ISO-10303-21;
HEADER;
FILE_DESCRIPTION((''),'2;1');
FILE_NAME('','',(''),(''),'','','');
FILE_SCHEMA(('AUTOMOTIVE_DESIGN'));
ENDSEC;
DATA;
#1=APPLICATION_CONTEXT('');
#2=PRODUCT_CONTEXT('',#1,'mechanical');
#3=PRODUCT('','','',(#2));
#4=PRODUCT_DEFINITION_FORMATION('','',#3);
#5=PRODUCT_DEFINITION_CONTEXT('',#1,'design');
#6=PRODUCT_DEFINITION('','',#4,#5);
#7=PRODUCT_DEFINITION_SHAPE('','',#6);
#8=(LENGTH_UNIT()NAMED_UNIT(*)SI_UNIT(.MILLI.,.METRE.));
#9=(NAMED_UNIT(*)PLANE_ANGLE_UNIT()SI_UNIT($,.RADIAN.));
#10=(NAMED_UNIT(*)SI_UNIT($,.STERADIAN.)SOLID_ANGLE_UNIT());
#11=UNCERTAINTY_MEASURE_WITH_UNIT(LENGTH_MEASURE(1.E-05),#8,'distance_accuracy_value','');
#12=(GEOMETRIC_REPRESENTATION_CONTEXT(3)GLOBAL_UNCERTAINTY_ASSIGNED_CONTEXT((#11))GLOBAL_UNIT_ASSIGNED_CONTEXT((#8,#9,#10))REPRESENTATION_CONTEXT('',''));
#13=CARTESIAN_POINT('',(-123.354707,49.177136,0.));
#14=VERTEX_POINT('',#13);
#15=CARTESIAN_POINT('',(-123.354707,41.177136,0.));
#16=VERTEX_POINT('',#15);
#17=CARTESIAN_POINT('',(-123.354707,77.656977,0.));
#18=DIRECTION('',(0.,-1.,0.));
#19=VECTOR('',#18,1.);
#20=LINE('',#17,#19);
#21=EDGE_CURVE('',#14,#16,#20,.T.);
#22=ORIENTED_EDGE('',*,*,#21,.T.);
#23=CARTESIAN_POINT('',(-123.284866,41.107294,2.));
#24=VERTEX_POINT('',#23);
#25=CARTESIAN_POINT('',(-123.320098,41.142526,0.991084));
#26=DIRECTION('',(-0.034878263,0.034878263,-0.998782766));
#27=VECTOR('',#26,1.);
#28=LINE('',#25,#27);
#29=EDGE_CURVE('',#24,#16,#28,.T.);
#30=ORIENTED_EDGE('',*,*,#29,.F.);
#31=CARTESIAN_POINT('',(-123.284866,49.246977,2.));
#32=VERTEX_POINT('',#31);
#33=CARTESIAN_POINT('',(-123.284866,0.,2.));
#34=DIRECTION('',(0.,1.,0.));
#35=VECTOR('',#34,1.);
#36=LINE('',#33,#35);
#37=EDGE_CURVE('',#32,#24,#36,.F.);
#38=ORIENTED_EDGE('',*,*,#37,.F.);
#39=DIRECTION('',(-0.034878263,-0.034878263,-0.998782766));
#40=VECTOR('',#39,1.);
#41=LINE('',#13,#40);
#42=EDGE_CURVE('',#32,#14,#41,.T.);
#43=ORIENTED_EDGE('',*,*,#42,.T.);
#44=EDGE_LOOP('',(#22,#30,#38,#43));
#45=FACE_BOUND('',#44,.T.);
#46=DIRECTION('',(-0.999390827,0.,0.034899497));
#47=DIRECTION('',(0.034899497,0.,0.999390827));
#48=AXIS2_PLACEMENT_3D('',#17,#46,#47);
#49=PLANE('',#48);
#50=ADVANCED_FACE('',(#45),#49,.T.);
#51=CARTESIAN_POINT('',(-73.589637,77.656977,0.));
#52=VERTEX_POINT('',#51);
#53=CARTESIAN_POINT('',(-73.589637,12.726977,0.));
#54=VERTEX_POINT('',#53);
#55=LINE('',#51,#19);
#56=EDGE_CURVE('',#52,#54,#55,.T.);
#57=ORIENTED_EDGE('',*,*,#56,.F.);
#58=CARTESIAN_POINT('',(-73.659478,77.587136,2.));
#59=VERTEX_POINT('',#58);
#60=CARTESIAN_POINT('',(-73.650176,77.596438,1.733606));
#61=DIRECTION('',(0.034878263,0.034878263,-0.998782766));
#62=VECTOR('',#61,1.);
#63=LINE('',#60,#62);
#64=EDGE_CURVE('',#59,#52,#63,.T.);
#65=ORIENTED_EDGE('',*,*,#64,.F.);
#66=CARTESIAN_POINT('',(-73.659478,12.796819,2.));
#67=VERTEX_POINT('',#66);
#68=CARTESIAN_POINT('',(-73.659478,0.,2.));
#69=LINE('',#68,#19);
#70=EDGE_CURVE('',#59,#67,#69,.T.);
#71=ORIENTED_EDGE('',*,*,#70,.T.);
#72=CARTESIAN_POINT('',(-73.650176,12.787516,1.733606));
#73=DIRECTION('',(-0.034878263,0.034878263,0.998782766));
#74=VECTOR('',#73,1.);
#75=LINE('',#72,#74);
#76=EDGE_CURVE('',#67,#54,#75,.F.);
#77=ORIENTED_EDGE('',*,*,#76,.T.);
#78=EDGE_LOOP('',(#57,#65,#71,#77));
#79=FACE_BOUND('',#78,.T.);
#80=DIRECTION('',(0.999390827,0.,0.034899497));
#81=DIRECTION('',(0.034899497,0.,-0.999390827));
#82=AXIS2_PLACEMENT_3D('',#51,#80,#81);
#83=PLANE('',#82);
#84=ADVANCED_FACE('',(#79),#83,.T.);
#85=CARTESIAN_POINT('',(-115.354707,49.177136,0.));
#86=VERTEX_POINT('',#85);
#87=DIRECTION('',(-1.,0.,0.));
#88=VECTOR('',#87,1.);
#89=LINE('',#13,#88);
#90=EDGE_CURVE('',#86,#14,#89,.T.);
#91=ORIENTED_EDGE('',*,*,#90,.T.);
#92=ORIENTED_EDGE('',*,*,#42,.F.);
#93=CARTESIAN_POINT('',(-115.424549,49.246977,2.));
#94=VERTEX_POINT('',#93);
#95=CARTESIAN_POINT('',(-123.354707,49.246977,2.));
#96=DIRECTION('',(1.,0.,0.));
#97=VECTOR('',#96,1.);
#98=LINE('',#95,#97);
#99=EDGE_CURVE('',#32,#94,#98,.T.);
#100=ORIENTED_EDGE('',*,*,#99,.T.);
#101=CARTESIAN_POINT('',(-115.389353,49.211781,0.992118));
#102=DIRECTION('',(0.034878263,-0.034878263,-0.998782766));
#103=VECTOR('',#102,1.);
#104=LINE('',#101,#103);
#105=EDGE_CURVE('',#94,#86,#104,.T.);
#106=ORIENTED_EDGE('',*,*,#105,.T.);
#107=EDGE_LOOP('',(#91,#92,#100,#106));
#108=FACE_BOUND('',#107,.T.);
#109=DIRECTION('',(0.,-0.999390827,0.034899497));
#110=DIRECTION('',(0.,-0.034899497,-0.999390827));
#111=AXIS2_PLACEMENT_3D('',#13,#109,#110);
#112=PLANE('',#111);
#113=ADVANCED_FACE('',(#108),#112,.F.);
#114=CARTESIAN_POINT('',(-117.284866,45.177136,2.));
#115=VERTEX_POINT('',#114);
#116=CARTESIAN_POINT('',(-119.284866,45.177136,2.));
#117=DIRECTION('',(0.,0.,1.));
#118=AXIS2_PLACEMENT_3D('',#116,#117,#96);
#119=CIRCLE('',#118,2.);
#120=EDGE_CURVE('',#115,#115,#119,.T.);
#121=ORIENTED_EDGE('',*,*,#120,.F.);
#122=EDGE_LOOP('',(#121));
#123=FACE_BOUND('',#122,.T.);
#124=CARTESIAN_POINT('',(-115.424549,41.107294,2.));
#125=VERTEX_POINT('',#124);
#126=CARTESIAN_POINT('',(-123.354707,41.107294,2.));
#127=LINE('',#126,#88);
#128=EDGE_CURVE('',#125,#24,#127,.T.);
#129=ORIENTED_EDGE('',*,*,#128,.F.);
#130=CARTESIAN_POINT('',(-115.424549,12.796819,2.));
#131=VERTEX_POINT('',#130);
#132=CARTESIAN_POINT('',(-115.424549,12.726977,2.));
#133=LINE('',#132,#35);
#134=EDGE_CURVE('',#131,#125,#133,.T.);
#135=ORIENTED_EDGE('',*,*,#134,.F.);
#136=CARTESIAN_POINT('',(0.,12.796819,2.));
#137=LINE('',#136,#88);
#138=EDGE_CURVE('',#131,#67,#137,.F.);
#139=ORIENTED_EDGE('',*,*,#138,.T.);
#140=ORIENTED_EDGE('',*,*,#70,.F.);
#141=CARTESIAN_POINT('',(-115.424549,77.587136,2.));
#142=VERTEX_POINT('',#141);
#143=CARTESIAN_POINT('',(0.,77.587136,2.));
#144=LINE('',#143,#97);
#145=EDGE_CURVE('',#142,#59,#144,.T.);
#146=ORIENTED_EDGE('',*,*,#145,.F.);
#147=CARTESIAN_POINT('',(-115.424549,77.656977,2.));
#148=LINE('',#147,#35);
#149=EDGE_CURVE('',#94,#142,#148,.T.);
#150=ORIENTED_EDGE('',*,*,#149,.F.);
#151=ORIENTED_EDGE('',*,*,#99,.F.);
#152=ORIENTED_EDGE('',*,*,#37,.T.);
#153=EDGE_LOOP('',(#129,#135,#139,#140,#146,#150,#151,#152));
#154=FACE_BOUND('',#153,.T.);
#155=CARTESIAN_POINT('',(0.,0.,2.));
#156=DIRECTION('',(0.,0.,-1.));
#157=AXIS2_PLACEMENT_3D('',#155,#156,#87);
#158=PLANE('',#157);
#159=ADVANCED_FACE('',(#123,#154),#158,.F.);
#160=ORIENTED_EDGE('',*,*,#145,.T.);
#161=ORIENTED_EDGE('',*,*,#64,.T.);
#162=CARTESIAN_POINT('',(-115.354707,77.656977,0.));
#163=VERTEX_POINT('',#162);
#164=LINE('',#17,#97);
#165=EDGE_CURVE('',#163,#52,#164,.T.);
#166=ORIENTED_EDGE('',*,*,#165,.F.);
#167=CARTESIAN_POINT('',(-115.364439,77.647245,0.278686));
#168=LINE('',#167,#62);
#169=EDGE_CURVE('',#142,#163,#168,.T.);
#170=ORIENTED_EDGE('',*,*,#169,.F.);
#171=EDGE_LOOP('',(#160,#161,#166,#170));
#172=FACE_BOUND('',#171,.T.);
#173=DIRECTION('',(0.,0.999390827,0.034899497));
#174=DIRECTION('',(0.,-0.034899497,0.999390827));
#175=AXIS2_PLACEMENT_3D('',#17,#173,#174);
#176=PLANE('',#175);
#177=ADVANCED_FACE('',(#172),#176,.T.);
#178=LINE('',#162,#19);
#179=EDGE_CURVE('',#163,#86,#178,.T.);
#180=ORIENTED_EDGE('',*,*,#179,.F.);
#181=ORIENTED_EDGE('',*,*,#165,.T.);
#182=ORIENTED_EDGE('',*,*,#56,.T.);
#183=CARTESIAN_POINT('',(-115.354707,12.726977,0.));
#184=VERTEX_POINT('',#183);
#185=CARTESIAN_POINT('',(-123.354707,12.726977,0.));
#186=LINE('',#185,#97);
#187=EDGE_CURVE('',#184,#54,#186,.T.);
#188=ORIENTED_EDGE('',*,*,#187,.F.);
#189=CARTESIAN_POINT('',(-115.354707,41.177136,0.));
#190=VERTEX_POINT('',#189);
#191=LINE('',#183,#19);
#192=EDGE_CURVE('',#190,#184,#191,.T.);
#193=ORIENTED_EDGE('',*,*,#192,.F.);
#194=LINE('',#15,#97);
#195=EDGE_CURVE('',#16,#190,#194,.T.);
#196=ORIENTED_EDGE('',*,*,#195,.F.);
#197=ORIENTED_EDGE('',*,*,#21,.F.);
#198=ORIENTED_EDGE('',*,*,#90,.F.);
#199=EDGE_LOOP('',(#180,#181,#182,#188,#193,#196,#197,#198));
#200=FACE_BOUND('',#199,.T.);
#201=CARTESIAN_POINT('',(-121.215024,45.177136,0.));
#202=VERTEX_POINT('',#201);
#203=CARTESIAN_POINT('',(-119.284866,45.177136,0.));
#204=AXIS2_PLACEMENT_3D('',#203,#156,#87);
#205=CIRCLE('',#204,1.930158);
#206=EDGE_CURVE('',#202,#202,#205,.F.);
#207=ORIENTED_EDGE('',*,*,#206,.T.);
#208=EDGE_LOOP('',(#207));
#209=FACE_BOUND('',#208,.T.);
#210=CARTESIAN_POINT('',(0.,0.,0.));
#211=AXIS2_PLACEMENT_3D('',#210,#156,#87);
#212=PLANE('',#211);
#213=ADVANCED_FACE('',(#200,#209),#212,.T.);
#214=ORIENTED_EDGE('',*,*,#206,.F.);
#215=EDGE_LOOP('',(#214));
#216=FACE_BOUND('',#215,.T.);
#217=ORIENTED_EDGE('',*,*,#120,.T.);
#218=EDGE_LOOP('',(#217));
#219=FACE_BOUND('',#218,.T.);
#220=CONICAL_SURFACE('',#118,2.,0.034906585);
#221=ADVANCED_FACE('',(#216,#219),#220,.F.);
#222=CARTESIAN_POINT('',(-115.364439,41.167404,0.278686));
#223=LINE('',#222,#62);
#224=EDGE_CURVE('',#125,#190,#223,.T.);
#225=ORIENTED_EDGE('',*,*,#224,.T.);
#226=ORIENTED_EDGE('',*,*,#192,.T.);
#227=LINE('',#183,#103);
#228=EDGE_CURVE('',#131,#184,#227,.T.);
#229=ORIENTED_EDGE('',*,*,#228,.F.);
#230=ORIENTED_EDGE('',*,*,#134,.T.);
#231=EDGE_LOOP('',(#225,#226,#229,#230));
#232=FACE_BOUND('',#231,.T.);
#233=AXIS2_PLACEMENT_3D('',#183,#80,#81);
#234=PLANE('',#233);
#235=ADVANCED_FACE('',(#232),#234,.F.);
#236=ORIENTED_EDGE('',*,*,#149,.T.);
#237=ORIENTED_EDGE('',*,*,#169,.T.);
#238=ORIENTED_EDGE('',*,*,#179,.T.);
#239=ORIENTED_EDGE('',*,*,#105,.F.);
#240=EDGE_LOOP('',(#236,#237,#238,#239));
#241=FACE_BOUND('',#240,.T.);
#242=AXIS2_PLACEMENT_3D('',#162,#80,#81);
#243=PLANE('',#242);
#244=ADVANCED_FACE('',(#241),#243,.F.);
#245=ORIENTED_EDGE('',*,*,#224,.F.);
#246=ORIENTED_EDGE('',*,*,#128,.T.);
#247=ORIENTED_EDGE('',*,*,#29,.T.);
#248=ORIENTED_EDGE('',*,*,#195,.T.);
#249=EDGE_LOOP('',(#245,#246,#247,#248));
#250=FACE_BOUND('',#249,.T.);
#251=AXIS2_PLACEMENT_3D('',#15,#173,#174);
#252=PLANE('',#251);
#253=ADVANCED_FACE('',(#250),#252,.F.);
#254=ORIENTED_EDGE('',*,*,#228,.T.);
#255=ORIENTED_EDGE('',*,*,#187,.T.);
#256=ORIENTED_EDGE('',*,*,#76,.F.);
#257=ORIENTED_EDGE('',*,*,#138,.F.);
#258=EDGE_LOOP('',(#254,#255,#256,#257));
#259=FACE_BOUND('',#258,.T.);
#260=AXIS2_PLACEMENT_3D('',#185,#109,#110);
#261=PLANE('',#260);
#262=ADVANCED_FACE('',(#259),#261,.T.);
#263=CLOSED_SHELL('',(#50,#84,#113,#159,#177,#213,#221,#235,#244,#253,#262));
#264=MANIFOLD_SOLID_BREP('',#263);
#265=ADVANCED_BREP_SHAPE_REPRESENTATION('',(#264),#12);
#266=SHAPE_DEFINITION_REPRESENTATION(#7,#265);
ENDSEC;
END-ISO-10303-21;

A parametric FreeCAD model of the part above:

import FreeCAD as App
import Part
import Sketcher

V = App.Vector


def faces_at(feature, points):
    """Names of the faces that lie closest to the given points."""
    faces = feature.Shape.Faces
    near = lambda p: min(range(len(faces)), key=lambda i: faces[i].distToShape(Part.Vertex(*p))[0])
    return sorted({f"Face{near(p) + 1}" for p in points})


def add_polygon(sketch, points):
    """Adds a closed chain of lines whose ends are joined by coincident constraints."""
    first, n = sketch.GeometryCount, len(points)
    for a, b in zip(points, points[1:] + points[:1]):
        sketch.addGeometry(Part.LineSegment(App.Vector(*a, 0), App.Vector(*b, 0)), False)
    for i in range(n):
        sketch.addConstraint(Sketcher.Constraint("Coincident", first + i, 2, first + (i + 1) % n, 1))

doc = App.newDocument("Part")
body = doc.addObject("PartDesign::Body", "Body")

# Sketch on XY plane
sketch1 = doc.addObject("Sketcher::SketchObject", "Sketch")
body.addObject(sketch1)
sketch1.AttachmentSupport = (doc.XY_Plane, [""])
sketch1.MapMode = "FlatFace"
add_polygon(sketch1, [(-123, 78), (-123, 13), (-74, 13), (-74, 78)])  # lines 0-3
sketch1.addConstraint(Sketcher.Constraint("Vertical", 0))
sketch1.addConstraint(Sketcher.Constraint("Horizontal", 1))
sketch1.addConstraint(Sketcher.Constraint("Vertical", 2))
sketch1.addConstraint(Sketcher.Constraint("Horizontal", 3))
sketch1.addConstraint(Sketcher.Constraint("DistanceY", 0, 2, 0, 1, 64.93))
sketch1.addConstraint(Sketcher.Constraint("DistanceX", 1, 1, 1, 2, 49.765071))
sketch1.addConstraint(Sketcher.Constraint("DistanceX", 0, 2, -1, 1, 123.354707))
sketch1.addConstraint(Sketcher.Constraint("DistanceY", -1, 1, 0, 2, 12.726977))
pad1 = doc.addObject("PartDesign::Pad", "Pad")
body.addObject(pad1)
pad1.Profile = sketch1
pad1.Length = 2
pad1.TaperAngle = -2
body2 = doc.addObject("PartDesign::Body", "Body001")

# Sketch on XY plane
sketch2 = doc.addObject("Sketcher::SketchObject", "Sketch001")
body2.addObject(sketch2)
sketch2.AttachmentSupport = (doc.getObject("XY_Plane001"), [""])
sketch2.MapMode = "FlatFace"
sketch2.AttachmentOffset = App.Placement(V(0, 0, 2), App.Rotation())
sketch2.addGeometry(Part.Circle(V(-119.3, 45.2, 0), V(0, 0, 1), 2), False)
sketch2.addConstraint(Sketcher.Constraint("Diameter", 0, 4.0))
sketch2.addConstraint(Sketcher.Constraint("DistanceX", 0, 3, -1, 1, 119.284866))
sketch2.addConstraint(Sketcher.Constraint("DistanceY", -1, 1, 0, 3, 45.177136))
pad2 = doc.addObject("PartDesign::Pad", "Pad001")
body2.addObject(pad2)
pad2.Profile = sketch2
pad2.Length = 2
pad2.Reversed = True
doc.recompute()

datumplane = doc.addObject("PartDesign::Plane", "DatumPlane")
body2.addObject(datumplane)
datumplane.AttachmentSupport = (doc.getObject("XY_Plane001"), [""])
datumplane.MapMode = "FlatFace"
datumplane.AttachmentOffset = App.Placement(V(0, 0, 2), App.Rotation())
draft = doc.addObject("PartDesign::Draft", "Draft")
body2.addObject(draft)
draft.Base = (pad2, faces_at(pad2, [(-121.285, 45.177, 1)]))
draft.NeutralPlane = (datumplane, [""])
draft.Angle = 2
draft.Reversed = True
doc.recompute()

boolean = doc.addObject("PartDesign::Boolean", "Boolean")
body.addObject(boolean)
boolean.Type = "Cut"
boolean.addObjects([body2])
body3 = doc.addObject("PartDesign::Body", "Body002")

# Sketch on XY plane
sketch3 = doc.addObject("Sketcher::SketchObject", "Sketch002")
body3.addObject(sketch3)
sketch3.AttachmentSupport = (doc.getObject("XY_Plane002"), [""])
sketch3.MapMode = "FlatFace"
add_polygon(sketch3, [(-115, 78), (-115, 49), (-123, 49), (-123, 78)])  # lines 0-3
sketch3.addConstraint(Sketcher.Constraint("Vertical", 0))
sketch3.addConstraint(Sketcher.Constraint("Horizontal", 1))
sketch3.addConstraint(Sketcher.Constraint("Vertical", 2))
sketch3.addConstraint(Sketcher.Constraint("Horizontal", 3))
sketch3.addConstraint(Sketcher.Constraint("DistanceX", 1, 2, 1, 1, 8.0))
sketch3.addConstraint(Sketcher.Constraint("DistanceY", 0, 2, 0, 1, 28.479842))
sketch3.addConstraint(Sketcher.Constraint("DistanceX", 0, 2, -1, 1, 115.354707))
sketch3.addConstraint(Sketcher.Constraint("DistanceY", -1, 1, 0, 2, 49.177136))
pad3 = doc.addObject("PartDesign::Pad", "Pad002")
body3.addObject(pad3)
pad3.Profile = sketch3
pad3.Length = 2
doc.recompute()

draft2 = doc.addObject("PartDesign::Draft", "Draft001")
body3.addObject(draft2)
draft2.Base = (pad3, faces_at(pad3, [
    (-119.355, 77.657, 1),
    (-115.355, 63.417, 1),
    (-119.355, 49.177, 1),
    (-123.355, 63.417, 1),
]))
draft2.NeutralPlane = (doc.getObject("XY_Plane002"), [""])
draft2.Angle = 2
draft2.Reversed = False
doc.recompute()

boolean2 = doc.addObject("PartDesign::Boolean", "Boolean001")
body.addObject(boolean2)
boolean2.Type = "Cut"
boolean2.addObjects([body3])
body4 = doc.addObject("PartDesign::Body", "Body003")

# Sketch on XY plane
sketch4 = doc.addObject("Sketcher::SketchObject", "Sketch003")
body4.addObject(sketch4)
sketch4.AttachmentSupport = (doc.getObject("XY_Plane003"), [""])
sketch4.MapMode = "FlatFace"
add_polygon(sketch4, [(-115, 41), (-115, 13), (-123, 13), (-123, 41)])  # lines 0-3
sketch4.addConstraint(Sketcher.Constraint("Vertical", 0))
sketch4.addConstraint(Sketcher.Constraint("Horizontal", 1))
sketch4.addConstraint(Sketcher.Constraint("Vertical", 2))
sketch4.addConstraint(Sketcher.Constraint("Horizontal", 3))
sketch4.addConstraint(Sketcher.Constraint("DistanceX", 1, 2, 1, 1, 8.0))
sketch4.addConstraint(Sketcher.Constraint("DistanceY", 0, 2, 0, 1, 28.450158))
sketch4.addConstraint(Sketcher.Constraint("DistanceX", 0, 2, -1, 1, 115.354707))
sketch4.addConstraint(Sketcher.Constraint("DistanceY", -1, 1, 0, 2, 12.726977))
pad4 = doc.addObject("PartDesign::Pad", "Pad003")
body4.addObject(pad4)
pad4.Profile = sketch4
pad4.Length = 2
doc.recompute()

draft3 = doc.addObject("PartDesign::Draft", "Draft002")
body4.addObject(draft3)
draft3.Base = (pad4, faces_at(pad4, [
    (-123.355, 26.952, 1),
    (-119.355, 41.177, 1),
    (-115.355, 26.952, 1),
    (-119.355, 12.727, 1),
]))
draft3.NeutralPlane = (doc.getObject("XY_Plane003"), [""])
draft3.Angle = 2
draft3.Reversed = False
doc.recompute()

boolean3 = doc.addObject("PartDesign::Boolean", "Boolean002")
body.addObject(boolean3)
boolean3.Type = "Cut"
boolean3.addObjects([body4])

doc.recompute()
